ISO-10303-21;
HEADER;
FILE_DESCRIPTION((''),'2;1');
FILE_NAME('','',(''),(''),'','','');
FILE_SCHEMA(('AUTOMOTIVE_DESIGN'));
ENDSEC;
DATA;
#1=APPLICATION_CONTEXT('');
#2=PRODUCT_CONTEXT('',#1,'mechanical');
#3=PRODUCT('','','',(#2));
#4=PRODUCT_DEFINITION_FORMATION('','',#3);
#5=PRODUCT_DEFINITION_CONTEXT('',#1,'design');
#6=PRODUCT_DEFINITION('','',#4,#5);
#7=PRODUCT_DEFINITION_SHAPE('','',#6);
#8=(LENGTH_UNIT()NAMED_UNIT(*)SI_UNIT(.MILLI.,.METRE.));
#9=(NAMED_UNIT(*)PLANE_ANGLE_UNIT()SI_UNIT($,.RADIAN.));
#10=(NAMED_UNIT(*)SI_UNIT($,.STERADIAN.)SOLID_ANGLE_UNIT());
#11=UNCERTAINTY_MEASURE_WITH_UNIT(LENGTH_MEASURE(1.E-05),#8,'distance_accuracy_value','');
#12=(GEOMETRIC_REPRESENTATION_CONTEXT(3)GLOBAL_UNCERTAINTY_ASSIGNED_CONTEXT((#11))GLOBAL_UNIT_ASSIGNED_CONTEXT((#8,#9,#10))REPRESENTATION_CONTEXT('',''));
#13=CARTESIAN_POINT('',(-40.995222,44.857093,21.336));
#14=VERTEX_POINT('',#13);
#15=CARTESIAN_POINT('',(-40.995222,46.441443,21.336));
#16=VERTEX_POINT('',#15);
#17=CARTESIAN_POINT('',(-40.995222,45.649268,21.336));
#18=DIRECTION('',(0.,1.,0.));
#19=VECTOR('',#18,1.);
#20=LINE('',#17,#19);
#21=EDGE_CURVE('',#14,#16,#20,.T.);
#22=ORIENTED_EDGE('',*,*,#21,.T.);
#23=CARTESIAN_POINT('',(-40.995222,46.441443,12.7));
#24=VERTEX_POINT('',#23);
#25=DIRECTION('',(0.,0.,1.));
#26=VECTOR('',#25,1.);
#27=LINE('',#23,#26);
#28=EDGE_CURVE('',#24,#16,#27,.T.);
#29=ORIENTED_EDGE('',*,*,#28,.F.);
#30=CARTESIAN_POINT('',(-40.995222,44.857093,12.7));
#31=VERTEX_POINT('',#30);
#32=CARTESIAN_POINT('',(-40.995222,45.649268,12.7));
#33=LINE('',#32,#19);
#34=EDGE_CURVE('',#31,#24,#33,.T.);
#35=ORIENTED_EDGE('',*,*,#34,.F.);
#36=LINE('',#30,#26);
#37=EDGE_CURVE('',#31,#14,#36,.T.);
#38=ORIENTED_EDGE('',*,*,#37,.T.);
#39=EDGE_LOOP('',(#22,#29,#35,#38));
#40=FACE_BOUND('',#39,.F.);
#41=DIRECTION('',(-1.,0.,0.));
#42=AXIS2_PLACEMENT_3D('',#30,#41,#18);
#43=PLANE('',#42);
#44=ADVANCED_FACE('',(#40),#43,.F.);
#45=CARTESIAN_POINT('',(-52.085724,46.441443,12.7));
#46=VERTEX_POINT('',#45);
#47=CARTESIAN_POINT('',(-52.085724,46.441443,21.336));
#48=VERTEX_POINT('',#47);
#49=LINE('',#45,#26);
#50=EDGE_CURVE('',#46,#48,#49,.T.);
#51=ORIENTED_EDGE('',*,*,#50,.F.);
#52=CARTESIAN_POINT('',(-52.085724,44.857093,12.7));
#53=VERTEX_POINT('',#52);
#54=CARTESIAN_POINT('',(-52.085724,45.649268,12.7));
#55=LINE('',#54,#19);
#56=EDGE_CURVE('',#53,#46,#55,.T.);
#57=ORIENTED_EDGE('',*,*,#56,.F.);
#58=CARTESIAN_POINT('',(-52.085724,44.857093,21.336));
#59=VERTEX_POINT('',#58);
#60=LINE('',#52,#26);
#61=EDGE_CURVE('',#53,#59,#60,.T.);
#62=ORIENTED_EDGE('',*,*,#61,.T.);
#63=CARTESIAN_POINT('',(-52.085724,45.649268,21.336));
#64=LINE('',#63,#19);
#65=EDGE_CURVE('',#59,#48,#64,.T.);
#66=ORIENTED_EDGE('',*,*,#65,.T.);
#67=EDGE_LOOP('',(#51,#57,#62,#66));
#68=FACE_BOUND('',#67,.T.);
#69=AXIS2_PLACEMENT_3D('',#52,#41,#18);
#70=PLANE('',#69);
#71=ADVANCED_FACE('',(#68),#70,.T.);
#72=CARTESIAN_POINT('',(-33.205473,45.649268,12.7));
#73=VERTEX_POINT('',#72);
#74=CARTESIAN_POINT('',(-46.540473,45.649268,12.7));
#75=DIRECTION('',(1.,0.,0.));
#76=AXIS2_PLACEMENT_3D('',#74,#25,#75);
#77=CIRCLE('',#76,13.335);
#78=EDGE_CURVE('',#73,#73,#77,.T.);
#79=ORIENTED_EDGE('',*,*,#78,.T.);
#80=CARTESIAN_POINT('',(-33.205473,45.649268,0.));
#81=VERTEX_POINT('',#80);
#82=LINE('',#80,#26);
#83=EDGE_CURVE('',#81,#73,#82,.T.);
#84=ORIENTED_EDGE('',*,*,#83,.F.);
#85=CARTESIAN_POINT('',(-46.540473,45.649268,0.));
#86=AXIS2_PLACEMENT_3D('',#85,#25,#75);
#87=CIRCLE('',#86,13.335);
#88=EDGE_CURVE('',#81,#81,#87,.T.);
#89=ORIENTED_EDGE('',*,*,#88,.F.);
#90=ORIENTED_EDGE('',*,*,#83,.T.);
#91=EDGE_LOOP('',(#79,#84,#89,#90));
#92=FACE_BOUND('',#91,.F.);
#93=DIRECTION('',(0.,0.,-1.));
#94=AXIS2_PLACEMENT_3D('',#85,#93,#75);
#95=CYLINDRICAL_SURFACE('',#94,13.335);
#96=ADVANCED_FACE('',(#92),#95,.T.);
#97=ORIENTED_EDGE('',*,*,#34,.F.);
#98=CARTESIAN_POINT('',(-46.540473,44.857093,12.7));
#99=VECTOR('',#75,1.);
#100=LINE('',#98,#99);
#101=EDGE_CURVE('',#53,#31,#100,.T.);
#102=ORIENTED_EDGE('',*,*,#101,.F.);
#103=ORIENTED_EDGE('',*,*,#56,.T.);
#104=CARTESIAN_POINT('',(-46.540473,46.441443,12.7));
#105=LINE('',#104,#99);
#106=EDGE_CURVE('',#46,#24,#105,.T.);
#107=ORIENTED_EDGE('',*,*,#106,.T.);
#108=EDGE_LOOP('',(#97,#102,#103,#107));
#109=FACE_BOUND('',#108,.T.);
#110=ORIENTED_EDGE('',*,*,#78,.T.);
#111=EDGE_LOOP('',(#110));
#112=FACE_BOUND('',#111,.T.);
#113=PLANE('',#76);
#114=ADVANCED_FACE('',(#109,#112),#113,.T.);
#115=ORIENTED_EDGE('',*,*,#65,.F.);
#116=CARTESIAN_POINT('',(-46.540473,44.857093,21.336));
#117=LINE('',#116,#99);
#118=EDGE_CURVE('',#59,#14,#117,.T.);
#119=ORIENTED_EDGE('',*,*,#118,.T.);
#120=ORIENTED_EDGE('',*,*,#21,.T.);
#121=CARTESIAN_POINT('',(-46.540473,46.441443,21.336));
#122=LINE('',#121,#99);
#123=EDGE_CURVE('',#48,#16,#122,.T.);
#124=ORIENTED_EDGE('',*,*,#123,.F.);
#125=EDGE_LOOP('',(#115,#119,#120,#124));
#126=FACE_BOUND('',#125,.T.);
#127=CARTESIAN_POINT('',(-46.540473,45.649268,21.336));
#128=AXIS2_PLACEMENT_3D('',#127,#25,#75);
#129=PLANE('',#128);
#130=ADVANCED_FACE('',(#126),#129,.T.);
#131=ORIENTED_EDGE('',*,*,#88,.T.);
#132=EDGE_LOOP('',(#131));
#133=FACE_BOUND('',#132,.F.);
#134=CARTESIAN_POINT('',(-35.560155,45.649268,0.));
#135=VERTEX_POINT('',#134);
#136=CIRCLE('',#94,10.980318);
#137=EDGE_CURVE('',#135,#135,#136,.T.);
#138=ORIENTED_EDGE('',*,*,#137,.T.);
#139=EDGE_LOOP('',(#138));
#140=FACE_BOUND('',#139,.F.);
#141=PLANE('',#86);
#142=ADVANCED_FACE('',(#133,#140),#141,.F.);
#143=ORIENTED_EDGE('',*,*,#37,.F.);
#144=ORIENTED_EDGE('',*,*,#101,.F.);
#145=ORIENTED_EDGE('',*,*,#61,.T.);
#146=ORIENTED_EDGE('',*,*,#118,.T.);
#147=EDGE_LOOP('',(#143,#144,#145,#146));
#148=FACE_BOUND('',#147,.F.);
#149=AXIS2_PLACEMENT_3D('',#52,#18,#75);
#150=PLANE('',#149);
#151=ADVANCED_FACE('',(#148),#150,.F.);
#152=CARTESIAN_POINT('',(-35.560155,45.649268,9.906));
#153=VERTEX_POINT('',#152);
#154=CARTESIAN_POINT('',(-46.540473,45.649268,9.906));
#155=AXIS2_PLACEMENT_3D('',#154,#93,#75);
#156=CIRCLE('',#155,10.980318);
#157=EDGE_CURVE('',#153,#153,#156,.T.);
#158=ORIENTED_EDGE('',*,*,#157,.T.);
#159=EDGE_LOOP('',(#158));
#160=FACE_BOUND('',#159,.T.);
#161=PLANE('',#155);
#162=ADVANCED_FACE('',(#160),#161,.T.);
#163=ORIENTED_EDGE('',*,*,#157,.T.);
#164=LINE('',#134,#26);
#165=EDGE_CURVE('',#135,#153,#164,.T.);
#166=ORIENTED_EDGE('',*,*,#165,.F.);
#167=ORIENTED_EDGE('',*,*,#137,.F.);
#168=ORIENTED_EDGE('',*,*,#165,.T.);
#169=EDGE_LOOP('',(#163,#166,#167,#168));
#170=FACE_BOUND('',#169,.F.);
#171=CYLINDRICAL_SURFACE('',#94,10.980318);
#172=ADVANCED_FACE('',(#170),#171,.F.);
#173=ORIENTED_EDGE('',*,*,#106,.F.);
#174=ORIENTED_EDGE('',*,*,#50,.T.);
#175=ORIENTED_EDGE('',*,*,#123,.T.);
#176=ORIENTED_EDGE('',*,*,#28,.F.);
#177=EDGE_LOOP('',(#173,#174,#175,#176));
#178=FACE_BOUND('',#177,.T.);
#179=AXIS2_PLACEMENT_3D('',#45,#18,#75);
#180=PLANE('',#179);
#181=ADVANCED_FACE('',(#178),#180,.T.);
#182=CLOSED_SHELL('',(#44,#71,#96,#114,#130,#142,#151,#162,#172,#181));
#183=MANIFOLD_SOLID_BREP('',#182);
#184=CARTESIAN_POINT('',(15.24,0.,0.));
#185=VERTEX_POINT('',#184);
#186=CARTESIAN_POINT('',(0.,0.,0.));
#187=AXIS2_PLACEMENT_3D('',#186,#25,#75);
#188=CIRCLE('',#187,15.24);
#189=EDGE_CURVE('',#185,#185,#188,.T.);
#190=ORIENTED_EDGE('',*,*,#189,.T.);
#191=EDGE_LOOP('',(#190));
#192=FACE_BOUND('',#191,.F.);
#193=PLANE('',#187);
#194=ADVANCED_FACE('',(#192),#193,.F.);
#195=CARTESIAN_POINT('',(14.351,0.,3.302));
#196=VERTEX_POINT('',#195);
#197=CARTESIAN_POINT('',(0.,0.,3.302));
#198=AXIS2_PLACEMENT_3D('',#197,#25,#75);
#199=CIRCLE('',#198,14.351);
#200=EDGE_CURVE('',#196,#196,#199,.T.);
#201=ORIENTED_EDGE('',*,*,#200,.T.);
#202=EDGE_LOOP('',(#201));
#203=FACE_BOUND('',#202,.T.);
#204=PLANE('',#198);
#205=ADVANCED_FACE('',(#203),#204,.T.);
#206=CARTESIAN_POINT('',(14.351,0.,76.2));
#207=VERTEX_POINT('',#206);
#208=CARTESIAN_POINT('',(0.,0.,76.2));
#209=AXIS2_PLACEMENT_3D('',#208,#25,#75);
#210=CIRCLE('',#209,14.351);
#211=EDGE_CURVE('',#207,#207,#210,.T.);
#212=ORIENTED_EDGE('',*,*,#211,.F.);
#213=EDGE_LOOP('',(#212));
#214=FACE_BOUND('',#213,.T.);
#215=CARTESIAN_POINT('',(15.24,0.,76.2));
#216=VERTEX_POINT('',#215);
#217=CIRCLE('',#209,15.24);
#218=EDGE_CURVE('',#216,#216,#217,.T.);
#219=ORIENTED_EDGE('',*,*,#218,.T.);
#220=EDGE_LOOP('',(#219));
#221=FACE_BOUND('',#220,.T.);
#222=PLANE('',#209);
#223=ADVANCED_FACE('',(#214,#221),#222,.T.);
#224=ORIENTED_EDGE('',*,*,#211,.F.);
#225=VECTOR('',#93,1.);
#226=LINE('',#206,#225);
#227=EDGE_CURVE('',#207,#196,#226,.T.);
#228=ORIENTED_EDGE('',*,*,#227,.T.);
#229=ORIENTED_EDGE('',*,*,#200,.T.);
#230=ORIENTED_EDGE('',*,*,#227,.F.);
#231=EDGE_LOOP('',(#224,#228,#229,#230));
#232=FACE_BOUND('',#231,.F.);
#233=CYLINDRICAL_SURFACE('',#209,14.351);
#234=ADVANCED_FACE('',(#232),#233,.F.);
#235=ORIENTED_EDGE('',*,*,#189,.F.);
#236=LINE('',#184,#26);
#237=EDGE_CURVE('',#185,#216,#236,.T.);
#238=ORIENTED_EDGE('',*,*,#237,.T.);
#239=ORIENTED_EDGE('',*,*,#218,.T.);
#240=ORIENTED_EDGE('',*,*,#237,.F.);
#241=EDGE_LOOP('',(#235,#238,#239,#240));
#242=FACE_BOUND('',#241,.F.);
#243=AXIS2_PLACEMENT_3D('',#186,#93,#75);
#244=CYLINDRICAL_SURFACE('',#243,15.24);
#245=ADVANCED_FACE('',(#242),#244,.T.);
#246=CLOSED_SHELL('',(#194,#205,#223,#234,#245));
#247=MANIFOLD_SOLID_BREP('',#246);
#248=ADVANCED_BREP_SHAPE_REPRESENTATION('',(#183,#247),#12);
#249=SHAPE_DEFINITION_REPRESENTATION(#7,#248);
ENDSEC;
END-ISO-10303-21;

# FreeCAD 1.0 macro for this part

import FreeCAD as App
import Part
import Sketcher
from FreeCAD import Vector
Q = App.Units.Quantity


def add_polygon(sketch, points):
    """Adds a closed chain of lines whose ends are joined by coincident constraints."""
    first, n = sketch.GeometryCount, len(points)
    for a, b in zip(points, points[1:] + points[:1]):
        sketch.addGeometry(Part.LineSegment(App.Vector(*a, 0), App.Vector(*b, 0)), False)
    for i in range(n):
        sketch.addConstraint(Sketcher.Constraint("Coincident", first + i, 2, first + (i + 1) % n, 1))

doc = App.newDocument("Part")
params = doc.addObject("Spreadsheet::Sheet", "Params")
for row, (alias, value) in enumerate([
    ("sketch1_diameter", "1.2 in"),
    ("pad1_length", "3 in"),
    ("sketch2_diameter", "1.13 in"),
    ("pocket1_length", "2.87 in"),
    ("sketch3_diameter", "1.05 in"),
    ("pad2_length", "0.5 in"),
    ("pocket2_length", "0.39 in"),
    ("pad3_length", "0.34 in"),
], start=1):
    params.set(f"A{row}", alias)
    params.set(f"B{row}", "=" + value)
    params.setAlias(f"B{row}", alias)

body = doc.addObject("PartDesign::Body", "Body")

# Sketch on XY plane
sketch1 = doc.addObject("Sketcher::SketchObject", "Sketch")
body.addObject(sketch1)
sketch1.AttachmentSupport = (doc.XY_Plane, [""])
sketch1.MapMode = "FlatFace"
sketch1.addGeometry(Part.Circle(Vector(0, 0, 0), Vector(0, 0, 1), 15), False)
sketch1.addConstraint([
    Sketcher.Constraint("Coincident", 0, 3, -1, 1),
    Sketcher.Constraint("Diameter", 0, Q("1.2 in")),
])
sketch1.setExpression("Constraints[1]", "Params.sketch1_diameter")
pad1 = doc.addObject("PartDesign::Pad", "Pad")
body.addObject(pad1)
pad1.Profile = sketch1
pad1.setExpression("Length", "Params.pad1_length")

# Sketch on XY plane
sketch2 = doc.addObject("Sketcher::SketchObject", "Sketch001")
body.addObject(sketch2)
sketch2.AttachmentSupport = (doc.XY_Plane, [""])
sketch2.MapMode = "FlatFace"
sketch2.AttachmentOffset = App.Placement(Vector(0, 0, 3 * 25.4), App.Rotation())
sketch2.addGeometry(Part.Circle(Vector(0, 0, 0), Vector(0, 0, 1), 14), False)
sketch2.addConstraint([
    Sketcher.Constraint("Coincident", 0, 3, -1, 1),
    Sketcher.Constraint("Diameter", 0, Q("1.13 in")),
])
sketch2.setExpression("Constraints[1]", "Params.sketch2_diameter")
pocket1 = doc.addObject("PartDesign::Pocket", "Pocket")
body.addObject(pocket1)
pocket1.Profile = sketch2
pocket1.setExpression("Length", "Params.pocket1_length")
body2 = doc.addObject("PartDesign::Body", "Body001")

# Sketch on XY plane
sketch3 = doc.addObject("Sketcher::SketchObject", "Sketch002")
body2.addObject(sketch3)
sketch3.AttachmentSupport = (doc.getObject("XY_Plane001"), [""])
sketch3.MapMode = "FlatFace"
sketch3.addGeometry(Part.Circle(Vector(-47, 46, 0), Vector(0, 0, 1), 13), False)
sketch3.addConstraint([
    Sketcher.Constraint("Diameter", 0, Q("1.05 in")),
    Sketcher.Constraint("DistanceX", 0, 3, -1, 1, 46.540473),
    Sketcher.Constraint("DistanceY", -1, 1, 0, 3, 45.649268),
])
sketch3.setExpression("Constraints[0]", "Params.sketch3_diameter")
pad2 = doc.addObject("PartDesign::Pad", "Pad001")
body2.addObject(pad2)
pad2.Profile = sketch3
pad2.setExpression("Length", "Params.pad2_length")

# Sketch on XY plane
sketch4 = doc.addObject("Sketcher::SketchObject", "Sketch003")
body2.addObject(sketch4)
sketch4.AttachmentSupport = (doc.getObject("XY_Plane001"), [""])
sketch4.MapMode = "FlatFace"
sketch4.addGeometry(Part.Circle(Vector(-47, 46, 0), Vector(0, 0, 1), 11), False)
sketch4.addConstraint([
    Sketcher.Constraint("Diameter", 0, 21.960636),
    Sketcher.Constraint("DistanceX", 0, 3, -1, 1, 46.540473),
    Sketcher.Constraint("DistanceY", -1, 1, 0, 3, 45.649268),
])
pocket2 = doc.addObject("PartDesign::Pocket", "Pocket001")
body2.addObject(pocket2)
pocket2.Profile = sketch4
pocket2.setExpression("Length", "Params.pocket2_length")
pocket2.Reversed = True

# Sketch on XY plane
sketch5 = doc.addObject("Sketcher::SketchObject", "Sketch004")
body2.addObject(sketch5)
sketch5.AttachmentSupport = (doc.getObject("XY_Plane001"), [""])
sketch5.MapMode = "FlatFace"
sketch5.AttachmentOffset = App.Placement(Vector(0, 0, 0.5 * 25.4), App.Rotation())
add_polygon(sketch5, [(-52.1, 46.4), (-52.1, 44.9), (-41, 44.9), (-41, 46.4)])  # lines 0-3
sketch5.addConstraint([
    Sketcher.Constraint("Vertical", 0),
    Sketcher.Constraint("Horizontal", 1),
    Sketcher.Constraint("Vertical", 2),
    Sketcher.Constraint("Horizontal", 3),
    Sketcher.Constraint("DistanceY", 0, 2, 0, 1, 1.584351),
    Sketcher.Constraint("DistanceX", 1, 1, 1, 2, 11.090502),
    Sketcher.Constraint("DistanceX", 1, 2, -1, 1, 40.995222),
    Sketcher.Constraint("DistanceY", -1, 1, 0, 2, 44.857093),
])
pad3 = doc.addObject("PartDesign::Pad", "Pad002")
body2.addObject(pad3)
pad3.Profile = sketch5
pad3.setExpression("Length", "Params.pad3_length")

doc.recompute()
